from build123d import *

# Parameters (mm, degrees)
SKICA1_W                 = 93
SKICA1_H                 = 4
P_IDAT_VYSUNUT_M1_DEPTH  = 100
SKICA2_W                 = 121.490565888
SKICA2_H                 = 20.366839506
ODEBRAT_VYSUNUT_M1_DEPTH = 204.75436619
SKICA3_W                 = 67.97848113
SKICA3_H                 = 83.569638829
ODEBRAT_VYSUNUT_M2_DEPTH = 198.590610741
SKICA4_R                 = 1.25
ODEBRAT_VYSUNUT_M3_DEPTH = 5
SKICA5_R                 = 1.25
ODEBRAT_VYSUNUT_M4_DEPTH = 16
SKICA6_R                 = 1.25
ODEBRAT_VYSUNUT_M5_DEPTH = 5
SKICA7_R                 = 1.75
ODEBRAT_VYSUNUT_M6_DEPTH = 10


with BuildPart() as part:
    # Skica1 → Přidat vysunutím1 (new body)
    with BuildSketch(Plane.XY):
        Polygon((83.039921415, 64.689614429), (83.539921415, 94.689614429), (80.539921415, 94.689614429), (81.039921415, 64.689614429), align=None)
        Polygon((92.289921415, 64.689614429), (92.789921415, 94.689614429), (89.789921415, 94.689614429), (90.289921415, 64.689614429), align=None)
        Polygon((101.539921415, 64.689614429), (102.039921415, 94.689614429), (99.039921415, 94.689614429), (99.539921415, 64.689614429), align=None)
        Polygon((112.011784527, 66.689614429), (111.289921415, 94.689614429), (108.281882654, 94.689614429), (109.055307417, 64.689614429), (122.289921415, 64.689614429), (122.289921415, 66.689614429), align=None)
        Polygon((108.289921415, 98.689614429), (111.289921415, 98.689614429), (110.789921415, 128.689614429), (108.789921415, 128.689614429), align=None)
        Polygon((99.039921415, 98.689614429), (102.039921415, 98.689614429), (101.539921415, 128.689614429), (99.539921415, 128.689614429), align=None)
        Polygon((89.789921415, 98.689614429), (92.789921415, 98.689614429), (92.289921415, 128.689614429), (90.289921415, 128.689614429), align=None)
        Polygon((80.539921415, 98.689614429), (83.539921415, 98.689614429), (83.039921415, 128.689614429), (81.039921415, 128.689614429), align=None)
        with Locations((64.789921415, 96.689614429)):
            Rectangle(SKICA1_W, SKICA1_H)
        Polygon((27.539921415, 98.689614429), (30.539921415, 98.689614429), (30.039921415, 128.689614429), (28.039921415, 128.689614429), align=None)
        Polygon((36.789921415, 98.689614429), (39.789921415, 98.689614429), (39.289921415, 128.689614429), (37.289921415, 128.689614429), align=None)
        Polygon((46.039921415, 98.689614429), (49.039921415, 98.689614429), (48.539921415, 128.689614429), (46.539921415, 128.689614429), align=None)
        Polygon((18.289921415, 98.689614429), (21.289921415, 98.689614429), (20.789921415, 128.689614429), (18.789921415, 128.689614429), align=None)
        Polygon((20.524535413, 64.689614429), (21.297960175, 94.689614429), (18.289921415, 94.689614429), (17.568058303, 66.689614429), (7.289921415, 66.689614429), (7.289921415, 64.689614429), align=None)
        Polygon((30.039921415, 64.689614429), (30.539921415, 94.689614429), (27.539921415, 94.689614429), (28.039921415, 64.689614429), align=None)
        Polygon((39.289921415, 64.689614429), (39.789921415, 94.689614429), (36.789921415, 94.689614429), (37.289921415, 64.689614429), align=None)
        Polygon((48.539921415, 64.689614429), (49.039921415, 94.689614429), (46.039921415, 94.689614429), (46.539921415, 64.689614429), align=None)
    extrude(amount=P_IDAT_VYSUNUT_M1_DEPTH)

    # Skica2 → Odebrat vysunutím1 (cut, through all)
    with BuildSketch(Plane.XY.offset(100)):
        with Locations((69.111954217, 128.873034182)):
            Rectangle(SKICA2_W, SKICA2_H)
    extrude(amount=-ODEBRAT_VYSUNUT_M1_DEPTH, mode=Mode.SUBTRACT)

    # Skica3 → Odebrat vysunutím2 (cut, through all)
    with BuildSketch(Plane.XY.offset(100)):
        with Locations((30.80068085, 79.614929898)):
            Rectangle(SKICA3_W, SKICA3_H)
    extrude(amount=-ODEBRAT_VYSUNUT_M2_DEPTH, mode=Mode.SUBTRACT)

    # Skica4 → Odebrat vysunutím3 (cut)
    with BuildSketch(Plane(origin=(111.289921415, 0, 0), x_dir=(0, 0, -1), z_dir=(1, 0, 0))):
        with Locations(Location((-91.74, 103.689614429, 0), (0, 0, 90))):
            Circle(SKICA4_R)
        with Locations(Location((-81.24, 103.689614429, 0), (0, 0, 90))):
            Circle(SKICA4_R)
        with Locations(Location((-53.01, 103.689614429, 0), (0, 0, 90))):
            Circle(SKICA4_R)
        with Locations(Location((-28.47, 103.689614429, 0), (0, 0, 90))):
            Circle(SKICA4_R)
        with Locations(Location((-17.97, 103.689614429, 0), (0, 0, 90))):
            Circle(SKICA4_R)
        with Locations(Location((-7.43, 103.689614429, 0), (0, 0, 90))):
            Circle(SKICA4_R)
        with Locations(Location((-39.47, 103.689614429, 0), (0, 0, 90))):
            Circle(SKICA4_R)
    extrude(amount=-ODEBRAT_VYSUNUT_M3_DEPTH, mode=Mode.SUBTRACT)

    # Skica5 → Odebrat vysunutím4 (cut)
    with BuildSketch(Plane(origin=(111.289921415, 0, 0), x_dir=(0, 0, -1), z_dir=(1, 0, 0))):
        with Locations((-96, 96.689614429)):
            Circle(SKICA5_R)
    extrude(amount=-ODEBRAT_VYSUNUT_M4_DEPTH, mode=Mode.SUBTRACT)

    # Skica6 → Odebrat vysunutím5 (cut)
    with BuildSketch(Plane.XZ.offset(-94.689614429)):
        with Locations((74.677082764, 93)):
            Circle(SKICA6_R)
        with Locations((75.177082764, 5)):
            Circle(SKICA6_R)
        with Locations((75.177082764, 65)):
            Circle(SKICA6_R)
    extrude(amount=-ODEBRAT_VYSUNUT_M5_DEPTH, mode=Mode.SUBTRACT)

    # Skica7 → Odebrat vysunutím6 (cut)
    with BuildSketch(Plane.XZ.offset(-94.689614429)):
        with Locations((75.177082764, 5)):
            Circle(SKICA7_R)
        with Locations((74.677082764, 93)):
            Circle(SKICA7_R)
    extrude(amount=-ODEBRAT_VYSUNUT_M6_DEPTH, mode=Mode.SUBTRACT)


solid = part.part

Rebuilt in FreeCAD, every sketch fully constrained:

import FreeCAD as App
import Part
import Sketcher

V = App.Vector
Q = App.Units.Quantity

doc = App.newDocument("Part")
body = doc.addObject("PartDesign::Body", "Body")

# Sketch on XY plane
sketch1 = doc.addObject("Sketcher::SketchObject", "Sketch")
body.addObject(sketch1)
sketch1.AttachmentSupport = (doc.XY_Plane, [""])
sketch1.MapMode = "FlatFace"
sketch1.addGeometry(Part.LineSegment(V(83, 64.7, 0), V(83.5, 94.7, 0)), False)
sketch1.addGeometry(Part.LineSegment(V(83.5, 94.7, 0), V(89.8, 94.7, 0)), False)
sketch1.addGeometry(Part.LineSegment(V(89.8, 94.7, 0), V(90.3, 64.7, 0)), False)
sketch1.addGeometry(Part.LineSegment(V(90.3, 64.7, 0), V(92.3, 64.7, 0)), False)
sketch1.addGeometry(Part.LineSegment(V(92.3, 64.7, 0), V(92.8, 94.7, 0)), False)
sketch1.addGeometry(Part.LineSegment(V(92.8, 94.7, 0), V(99, 94.7, 0)), False)
sketch1.addGeometry(Part.LineSegment(V(99, 94.7, 0), V(99.5, 64.7, 0)), False)
sketch1.addGeometry(Part.LineSegment(V(99.5, 64.7, 0), V(101.5, 64.7, 0)), False)
sketch1.addGeometry(Part.LineSegment(V(101.5, 64.7, 0), V(102, 94.7, 0)), False)
sketch1.addGeometry(Part.LineSegment(V(102, 94.7, 0), V(108.3, 94.7, 0)), False)
sketch1.addGeometry(Part.LineSegment(V(108.3, 94.7, 0), V(109.1, 64.7, 0)), False)
sketch1.addGeometry(Part.LineSegment(V(109.1, 64.7, 0), V(122.3, 64.7, 0)), False)
sketch1.addGeometry(Part.LineSegment(V(122.3, 64.7, 0), V(122.3, 66.7, 0)), False)
sketch1.addGeometry(Part.LineSegment(V(122.3, 66.7, 0), V(112, 66.7, 0)), False)
sketch1.addGeometry(Part.LineSegment(V(112, 66.7, 0), V(111.3, 94.7, 0)), False)
sketch1.addGeometry(Part.LineSegment(V(111.3, 94.7, 0), V(111.3, 98.7, 0)), False)
sketch1.addGeometry(Part.LineSegment(V(111.3, 98.7, 0), V(110.8, 128.7, 0)), False)
sketch1.addGeometry(Part.LineSegment(V(110.8, 128.7, 0), V(108.8, 128.7, 0)), False)
sketch1.addGeometry(Part.LineSegment(V(108.8, 128.7, 0), V(108.3, 98.7, 0)), False)
sketch1.addGeometry(Part.LineSegment(V(108.3, 98.7, 0), V(102, 98.7, 0)), False)
sketch1.addGeometry(Part.LineSegment(V(102, 98.7, 0), V(101.5, 128.7, 0)), False)
sketch1.addGeometry(Part.LineSegment(V(101.5, 128.7, 0), V(99.5, 128.7, 0)), False)
sketch1.addGeometry(Part.LineSegment(V(99.5, 128.7, 0), V(99, 98.7, 0)), False)
sketch1.addGeometry(Part.LineSegment(V(99, 98.7, 0), V(92.8, 98.7, 0)), False)
sketch1.addGeometry(Part.LineSegment(V(92.8, 98.7, 0), V(92.3, 128.7, 0)), False)
sketch1.addGeometry(Part.LineSegment(V(92.3, 128.7, 0), V(90.3, 128.7, 0)), False)
sketch1.addGeometry(Part.LineSegment(V(90.3, 128.7, 0), V(89.8, 98.7, 0)), False)
sketch1.addGeometry(Part.LineSegment(V(89.8, 98.7, 0), V(83.5, 98.7, 0)), False)
sketch1.addGeometry(Part.LineSegment(V(83.5, 98.7, 0), V(83, 128.7, 0)), False)
sketch1.addGeometry(Part.LineSegment(V(83, 128.7, 0), V(81, 128.7, 0)), False)
sketch1.addGeometry(Part.LineSegment(V(81, 128.7, 0), V(80.5, 98.7, 0)), False)
sketch1.addGeometry(Part.LineSegment(V(80.5, 98.7, 0), V(49, 98.7, 0)), False)
sketch1.addGeometry(Part.LineSegment(V(49, 98.7, 0), V(48.5, 128.7, 0)), False)
sketch1.addGeometry(Part.LineSegment(V(48.5, 128.7, 0), V(46.5, 128.7, 0)), False)
sketch1.addGeometry(Part.LineSegment(V(46.5, 128.7, 0), V(46, 98.7, 0)), False)
sketch1.addGeometry(Part.LineSegment(V(46, 98.7, 0), V(39.8, 98.7, 0)), False)
sketch1.addGeometry(Part.LineSegment(V(39.8, 98.7, 0), V(39.3, 128.7, 0)), False)
sketch1.addGeometry(Part.LineSegment(V(39.3, 128.7, 0), V(37.3, 128.7, 0)), False)
sketch1.addGeometry(Part.LineSegment(V(37.3, 128.7, 0), V(36.8, 98.7, 0)), False)
sketch1.addGeometry(Part.LineSegment(V(36.8, 98.7, 0), V(30.5, 98.7, 0)), False)
sketch1.addGeometry(Part.LineSegment(V(30.5, 98.7, 0), V(30, 128.7, 0)), False)
sketch1.addGeometry(Part.LineSegment(V(30, 128.7, 0), V(28, 128.7, 0)), False)
sketch1.addGeometry(Part.LineSegment(V(28, 128.7, 0), V(27.5, 98.7, 0)), False)
sketch1.addGeometry(Part.LineSegment(V(27.5, 98.7, 0), V(21.3, 98.7, 0)), False)
sketch1.addGeometry(Part.LineSegment(V(21.3, 98.7, 0), V(20.8, 128.7, 0)), False)
sketch1.addGeometry(Part.LineSegment(V(20.8, 128.7, 0), V(18.8, 128.7, 0)), False)
sketch1.addGeometry(Part.LineSegment(V(18.8, 128.7, 0), V(18.3, 98.7, 0)), False)
sketch1.addGeometry(Part.LineSegment(V(18.3, 98.7, 0), V(18.3, 94.7, 0)), False)
sketch1.addGeometry(Part.LineSegment(V(18.3, 94.7, 0), V(17.6, 66.7, 0)), False)
sketch1.addGeometry(Part.LineSegment(V(17.6, 66.7, 0), V(7.3, 66.7, 0)), False)
sketch1.addGeometry(Part.LineSegment(V(7.3, 66.7, 0), V(7.3, 64.7, 0)), False)
sketch1.addGeometry(Part.LineSegment(V(7.3, 64.7, 0), V(20.5, 64.7, 0)), False)
sketch1.addGeometry(Part.LineSegment(V(20.5, 64.7, 0), V(21.3, 94.7, 0)), False)
sketch1.addGeometry(Part.LineSegment(V(21.3, 94.7, 0), V(27.5, 94.7, 0)), False)
sketch1.addGeometry(Part.LineSegment(V(27.5, 94.7, 0), V(28, 64.7, 0)), False)
sketch1.addGeometry(Part.LineSegment(V(28, 64.7, 0), V(30, 64.7, 0)), False)
sketch1.addGeometry(Part.LineSegment(V(30, 64.7, 0), V(30.5, 94.7, 0)), False)
sketch1.addGeometry(Part.LineSegment(V(30.5, 94.7, 0), V(36.8, 94.7, 0)), False)
sketch1.addGeometry(Part.LineSegment(V(36.8, 94.7, 0), V(37.3, 64.7, 0)), False)
sketch1.addGeometry(Part.LineSegment(V(37.3, 64.7, 0), V(39.3, 64.7, 0)), False)
sketch1.addGeometry(Part.LineSegment(V(39.3, 64.7, 0), V(39.8, 94.7, 0)), False)
sketch1.addGeometry(Part.LineSegment(V(39.8, 94.7, 0), V(46, 94.7, 0)), False)
sketch1.addGeometry(Part.LineSegment(V(46, 94.7, 0), V(46.5, 64.7, 0)), False)
sketch1.addGeometry(Part.LineSegment(V(46.5, 64.7, 0), V(48.5, 64.7, 0)), False)
sketch1.addGeometry(Part.LineSegment(V(48.5, 64.7, 0), V(49, 94.7, 0)), False)
sketch1.addGeometry(Part.LineSegment(V(49, 94.7, 0), V(80.5, 94.7, 0)), False)
sketch1.addGeometry(Part.LineSegment(V(80.5, 94.7, 0), V(81, 64.7, 0)), False)
sketch1.addGeometry(Part.LineSegment(V(81, 64.7, 0), V(83, 64.7, 0)), False)
sketch1.addConstraint(Sketcher.Constraint("Coincident", 0, 2, 1, 1))
sketch1.addConstraint(Sketcher.Constraint("Coincident", 1, 2, 2, 1))
sketch1.addConstraint(Sketcher.Constraint("Coincident", 2, 2, 3, 1))
sketch1.addConstraint(Sketcher.Constraint("Coincident", 3, 2, 4, 1))
sketch1.addConstraint(Sketcher.Constraint("Coincident", 4, 2, 5, 1))
sketch1.addConstraint(Sketcher.Constraint("Coincident", 5, 2, 6, 1))
sketch1.addConstraint(Sketcher.Constraint("Coincident", 6, 2, 7, 1))
sketch1.addConstraint(Sketcher.Constraint("Coincident", 7, 2, 8, 1))
sketch1.addConstraint(Sketcher.Constraint("Coincident", 8, 2, 9, 1))
sketch1.addConstraint(Sketcher.Constraint("Coincident", 9, 2, 10, 1))
sketch1.addConstraint(Sketcher.Constraint("Coincident", 10, 2, 11, 1))
sketch1.addConstraint(Sketcher.Constraint("Coincident", 11, 2, 12, 1))
sketch1.addConstraint(Sketcher.Constraint("Coincident", 12, 2, 13, 1))
sketch1.addConstraint(Sketcher.Constraint("Coincident", 13, 2, 14, 1))
sketch1.addConstraint(Sketcher.Constraint("Coincident", 14, 2, 15, 1))
sketch1.addConstraint(Sketcher.Constraint("Coincident", 15, 2, 16, 1))
sketch1.addConstraint(Sketcher.Constraint("Coincident", 16, 2, 17, 1))
sketch1.addConstraint(Sketcher.Constraint("Coincident", 17, 2, 18, 1))
sketch1.addConstraint(Sketcher.Constraint("Coincident", 18, 2, 19, 1))
sketch1.addConstraint(Sketcher.Constraint("Coincident", 19, 2, 20, 1))
sketch1.addConstraint(Sketcher.Constraint("Coincident", 20, 2, 21, 1))
sketch1.addConstraint(Sketcher.Constraint("Coincident", 21, 2, 22, 1))
sketch1.addConstraint(Sketcher.Constraint("Coincident", 22, 2, 23, 1))
sketch1.addConstraint(Sketcher.Constraint("Coincident", 23, 2, 24, 1))
sketch1.addConstraint(Sketcher.Constraint("Coincident", 24, 2, 25, 1))
sketch1.addConstraint(Sketcher.Constraint("Coincident", 25, 2, 26, 1))
sketch1.addConstraint(Sketcher.Constraint("Coincident", 26, 2, 27, 1))
sketch1.addConstraint(Sketcher.Constraint("Coincident", 27, 2, 28, 1))
sketch1.addConstraint(Sketcher.Constraint("Coincident", 28, 2, 29, 1))
sketch1.addConstraint(Sketcher.Constraint("Coincident", 29, 2, 30, 1))
sketch1.addConstraint(Sketcher.Constraint("Coincident", 30, 2, 31, 1))
sketch1.addConstraint(Sketcher.Constraint("Coincident", 31, 2, 32, 1))
sketch1.addConstraint(Sketcher.Constraint("Coincident", 32, 2, 33, 1))
sketch1.addConstraint(Sketcher.Constraint("Coincident", 33, 2, 34, 1))
sketch1.addConstraint(Sketcher.Constraint("Coincident", 34, 2, 35, 1))
sketch1.addConstraint(Sketcher.Constraint("Coincident", 35, 2, 36, 1))
sketch1.addConstraint(Sketcher.Constraint("Coincident", 36, 2, 37, 1))
sketch1.addConstraint(Sketcher.Constraint("Coincident", 37, 2, 38, 1))
sketch1.addConstraint(Sketcher.Constraint("Coincident", 38, 2, 39, 1))
sketch1.addConstraint(Sketcher.Constraint("Coincident", 39, 2, 40, 1))
sketch1.addConstraint(Sketcher.Constraint("Coincident", 40, 2, 41, 1))
sketch1.addConstraint(Sketcher.Constraint("Coincident", 41, 2, 42, 1))
sketch1.addConstraint(Sketcher.Constraint("Coincident", 42, 2, 43, 1))
sketch1.addConstraint(Sketcher.Constraint("Coincident", 43, 2, 44, 1))
sketch1.addConstraint(Sketcher.Constraint("Coincident", 44, 2, 45, 1))
sketch1.addConstraint(Sketcher.Constraint("Coincident", 45, 2, 46, 1))
sketch1.addConstraint(Sketcher.Constraint("Coincident", 46, 2, 47, 1))
sketch1.addConstraint(Sketcher.Constraint("Coincident", 47, 2, 48, 1))
sketch1.addConstraint(Sketcher.Constraint("Coincident", 48, 2, 49, 1))
sketch1.addConstraint(Sketcher.Constraint("Coincident", 49, 2, 50, 1))
sketch1.addConstraint(Sketcher.Constraint("Coincident", 50, 2, 51, 1))
sketch1.addConstraint(Sketcher.Constraint("Coincident", 51, 2, 52, 1))
sketch1.addConstraint(Sketcher.Constraint("Coincident", 52, 2, 53, 1))
sketch1.addConstraint(Sketcher.Constraint("Coincident", 53, 2, 54, 1))
sketch1.addConstraint(Sketcher.Constraint("Coincident", 54, 2, 55, 1))
sketch1.addConstraint(Sketcher.Constraint("Coincident", 55, 2, 56, 1))
sketch1.addConstraint(Sketcher.Constraint("Coincident", 56, 2, 57, 1))
sketch1.addConstraint(Sketcher.Constraint("Coincident", 57, 2, 58, 1))
sketch1.addConstraint(Sketcher.Constraint("Coincident", 58, 2, 59, 1))
sketch1.addConstraint(Sketcher.Constraint("Coincident", 59, 2, 60, 1))
sketch1.addConstraint(Sketcher.Constraint("Coincident", 60, 2, 61, 1))
sketch1.addConstraint(Sketcher.Constraint("Coincident", 61, 2, 62, 1))
sketch1.addConstraint(Sketcher.Constraint("Coincident", 62, 2, 63, 1))
sketch1.addConstraint(Sketcher.Constraint("Coincident", 63, 2, 64, 1))
sketch1.addConstraint(Sketcher.Constraint("Coincident", 64, 2, 65, 1))
sketch1.addConstraint(Sketcher.Constraint("Coincident", 65, 2, 66, 1))
sketch1.addConstraint(Sketcher.Constraint("Coincident", 66, 2, 67, 1))
sketch1.addConstraint(Sketcher.Constraint("Coincident", 67, 2, 0, 1))
sketch1.addConstraint(Sketcher.Constraint("Horizontal", 1))
sketch1.addConstraint(Sketcher.Constraint("Horizontal", 3))
sketch1.addConstraint(Sketcher.Constraint("Horizontal", 5))
sketch1.addConstraint(Sketcher.Constraint("Horizontal", 7))
sketch1.addConstraint(Sketcher.Constraint("Horizontal", 9))
sketch1.addConstraint(Sketcher.Constraint("Horizontal", 11))
sketch1.addConstraint(Sketcher.Constraint("Vertical", 12))
sketch1.addConstraint(Sketcher.Constraint("Horizontal", 13))
sketch1.addConstraint(Sketcher.Constraint("Vertical", 15))
sketch1.addConstraint(Sketcher.Constraint("Horizontal", 17))
sketch1.addConstraint(Sketcher.Constraint("Horizontal", 19))
sketch1.addConstraint(Sketcher.Constraint("Horizontal", 21))
sketch1.addConstraint(Sketcher.Constraint("Horizontal", 23))
sketch1.addConstraint(Sketcher.Constraint("Horizontal", 25))
sketch1.addConstraint(Sketcher.Constraint("Horizontal", 27))
sketch1.addConstraint(Sketcher.Constraint("Horizontal", 29))
sketch1.addConstraint(Sketcher.Constraint("Horizontal", 31))
sketch1.addConstraint(Sketcher.Constraint("Horizontal", 33))
sketch1.addConstraint(Sketcher.Constraint("Horizontal", 35))
sketch1.addConstraint(Sketcher.Constraint("Horizontal", 37))
sketch1.addConstraint(Sketcher.Constraint("Horizontal", 39))
sketch1.addConstraint(Sketcher.Constraint("Horizontal", 41))
sketch1.addConstraint(Sketcher.Constraint("Horizontal", 43))
sketch1.addConstraint(Sketcher.Constraint("Horizontal", 45))
sketch1.addConstraint(Sketcher.Constraint("Vertical", 47))
sketch1.addConstraint(Sketcher.Constraint("Horizontal", 49))
sketch1.addConstraint(Sketcher.Constraint("Vertical", 50))
sketch1.addConstraint(Sketcher.Constraint("Horizontal", 51))
sketch1.addConstraint(Sketcher.Constraint("Horizontal", 53))
sketch1.addConstraint(Sketcher.Constraint("Horizontal", 55))
sketch1.addConstraint(Sketcher.Constraint("Horizontal", 57))
sketch1.addConstraint(Sketcher.Constraint("Horizontal", 59))
sketch1.addConstraint(Sketcher.Constraint("Horizontal", 61))
sketch1.addConstraint(Sketcher.Constraint("Horizontal", 63))
sketch1.addConstraint(Sketcher.Constraint("Horizontal", 65))
sketch1.addConstraint(Sketcher.Constraint("Horizontal", 67))
sketch1.addConstraint(Sketcher.Constraint("Parallel", 0, 4))
sketch1.addConstraint(Sketcher.Constraint("Parallel", 2, 6))
sketch1.addConstraint(Sketcher.Constraint("Parallel", 4, 8))
sketch1.addConstraint(Sketcher.Constraint("Parallel", 10, 14))
sketch1.addConstraint(Sketcher.Constraint("Parallel", 6, 16))
sketch1.addConstraint(Sketcher.Constraint("Parallel", 8, 18))
sketch1.addConstraint(Sketcher.Constraint("Parallel", 16, 20))
sketch1.addConstraint(Sketcher.Constraint("Parallel", 18, 22))
sketch1.addConstraint(Sketcher.Constraint("Parallel", 20, 24))
sketch1.addConstraint(Sketcher.Constraint("Parallel", 22, 26))
sketch1.addConstraint(Sketcher.Constraint("Parallel", 24, 28))
sketch1.addConstraint(Sketcher.Constraint("Parallel", 26, 30))
sketch1.addConstraint(Sketcher.Constraint("Parallel", 28, 32))
sketch1.addConstraint(Sketcher.Constraint("Parallel", 30, 34))
sketch1.addConstraint(Sketcher.Constraint("Parallel", 32, 36))
sketch1.addConstraint(Sketcher.Constraint("Parallel", 34, 38))
sketch1.addConstraint(Sketcher.Constraint("Parallel", 36, 40))
sketch1.addConstraint(Sketcher.Constraint("Parallel", 38, 42))
sketch1.addConstraint(Sketcher.Constraint("Parallel", 40, 44))
sketch1.addConstraint(Sketcher.Constraint("Parallel", 42, 46))
sketch1.addConstraint(Sketcher.Constraint("Parallel", 48, 52))
sketch1.addConstraint(Sketcher.Constraint("Parallel", 44, 54))
sketch1.addConstraint(Sketcher.Constraint("Parallel", 46, 56))
sketch1.addConstraint(Sketcher.Constraint("Parallel", 54, 58))
sketch1.addConstraint(Sketcher.Constraint("Parallel", 56, 60))
sketch1.addConstraint(Sketcher.Constraint("Parallel", 58, 62))
sketch1.addConstraint(Sketcher.Constraint("Parallel", 60, 64))
sketch1.addConstraint(Sketcher.Constraint("Parallel", 62, 66))
sketch1.addConstraint(Sketcher.Constraint("Horizontal", 1, 2, 4, 2))
sketch1.addConstraint(Sketcher.Constraint("Horizontal", 3, 2, 6, 2))
sketch1.addConstraint(Sketcher.Constraint("Horizontal", 5, 2, 8, 2))
sketch1.addConstraint(Sketcher.Constraint("Horizontal", 7, 2, 10, 2))
sketch1.addConstraint(Sketcher.Constraint("Horizontal", 9, 2, 14, 2))
sketch1.addConstraint(Sketcher.Constraint("Horizontal", 15, 2, 18, 2))
sketch1.addConstraint(Sketcher.Constraint("Horizontal", 17, 2, 20, 2))
sketch1.addConstraint(Sketcher.Constraint("Horizontal", 19, 2, 22, 2))
sketch1.addConstraint(Sketcher.Constraint("Horizontal", 21, 2, 24, 2))
sketch1.addConstraint(Sketcher.Constraint("Horizontal", 23, 2, 26, 2))
sketch1.addConstraint(Sketcher.Constraint("Horizontal", 25, 2, 28, 2))
sketch1.addConstraint(Sketcher.Constraint("Horizontal", 27, 2, 30, 2))
sketch1.addConstraint(Sketcher.Constraint("Horizontal", 29, 2, 32, 2))
sketch1.addConstraint(Sketcher.Constraint("Horizontal", 31, 2, 34, 2))
sketch1.addConstraint(Sketcher.Constraint("Horizontal", 33, 2, 36, 2))
sketch1.addConstraint(Sketcher.Constraint("Horizontal", 35, 2, 38, 2))
sketch1.addConstraint(Sketcher.Constraint("Horizontal", 37, 2, 40, 2))
sketch1.addConstraint(Sketcher.Constraint("Horizontal", 39, 2, 42, 2))
sketch1.addConstraint(Sketcher.Constraint("Horizontal", 41, 2, 44, 2))
sketch1.addConstraint(Sketcher.Constraint("Horizontal", 43, 2, 46, 2))
sketch1.addConstraint(Sketcher.Constraint("Horizontal", 14, 2, 47, 2))
sketch1.addConstraint(Sketcher.Constraint("Horizontal", 13, 2, 48, 2))
sketch1.addConstraint(Sketcher.Constraint("Horizontal", 11, 2, 50, 2))
sketch1.addConstraint(Sketcher.Constraint("Horizontal", 47, 2, 52, 2))
sketch1.addConstraint(Sketcher.Constraint("Horizontal", 51, 2, 54, 2))
sketch1.addConstraint(Sketcher.Constraint("Horizontal", 53, 2, 56, 2))
sketch1.addConstraint(Sketcher.Constraint("Horizontal", 55, 2, 58, 2))
sketch1.addConstraint(Sketcher.Constraint("Horizontal", 57, 2, 60, 2))
sketch1.addConstraint(Sketcher.Constraint("Horizontal", 59, 2, 62, 2))
sketch1.addConstraint(Sketcher.Constraint("Horizontal", 61, 2, 64, 2))
sketch1.addConstraint(Sketcher.Constraint("Horizontal", 63, 2, 66, 2))
sketch1.addConstraint(Sketcher.Constraint("Vertical", 8, 2, 19, 2))
sketch1.addConstraint(Sketcher.Constraint("Vertical", 7, 2, 20, 2))
sketch1.addConstraint(Sketcher.Constraint("Vertical", 6, 2, 21, 2))
sketch1.addConstraint(Sketcher.Constraint("Vertical", 5, 2, 22, 2))
sketch1.addConstraint(Sketcher.Constraint("Vertical", 4, 2, 23, 2))
sketch1.addConstraint(Sketcher.Constraint("Vertical", 2, 2, 25, 2))
sketch1.addConstraint(Sketcher.Constraint("Vertical", 0, 2, 27, 2))
sketch1.addConstraint(Sketcher.Constraint("Vertical", 42, 2, 53, 2))
sketch1.addConstraint(Sketcher.Constraint("Vertical", 40, 2, 55, 2))
sketch1.addConstraint(Sketcher.Constraint("Vertical", 38, 2, 57, 2))
sketch1.addConstraint(Sketcher.Constraint("Vertical", 36, 2, 59, 2))
sketch1.addConstraint(Sketcher.Constraint("Vertical", 34, 2, 61, 2))
sketch1.addConstraint(Sketcher.Constraint("Vertical", 32, 2, 63, 2))
sketch1.addConstraint(Sketcher.Constraint("Vertical", 30, 2, 65, 2))
sketch1.addConstraint(Sketcher.Constraint("Equal", 1, 5))
sketch1.addConstraint(Sketcher.Constraint("Equal", 3, 7))
sketch1.addConstraint(Sketcher.Constraint("Equal", 7, 17))
sketch1.addConstraint(Sketcher.Constraint("Equal", 5, 19))
sketch1.addConstraint(Sketcher.Constraint("Equal", 25, 29))
sketch1.addConstraint(Sketcher.Constraint("Equal", 29, 33))
sketch1.addConstraint(Sketcher.Constraint("Equal", 27, 35))
sketch1.addConstraint(Sketcher.Constraint("Equal", 33, 37))
sketch1.addConstraint(Sketcher.Constraint("Equal", 35, 39))
sketch1.addConstraint(Sketcher.Constraint("Equal", 37, 41))
sketch1.addConstraint(Sketcher.Constraint("Equal", 39, 43))
sketch1.addConstraint(Sketcher.Constraint("Equal", 41, 45))
sketch1.addConstraint(Sketcher.Constraint("Equal", 13, 49))
sketch1.addConstraint(Sketcher.Constraint("Equal", 11, 51))
sketch1.addConstraint(Sketcher.Constraint("Equal", 9, 53))
sketch1.addConstraint(Sketcher.Constraint("Equal", 67, 12))
sketch1.addConstraint(Sketcher.Constraint("DistanceX", 3, 1, 3, 2, Q("2 mm")))
sketch1.addConstraint(Sketcher.Constraint("DistanceY", 15, 1, 15, 2, Q("4 mm")))
sketch1.addConstraint(Sketcher.Constraint("DistanceX", 31, 2, 31, 1, Q("31.5 mm")))
sketch1.addConstraint(Sketcher.Constraint("DistanceX", 1, 1, 1, 2, Q("6.25 mm")))
sketch1.addConstraint(Sketcher.Constraint("DistanceX", 9, 1, 9, 2, Q("6.241961 mm")))
sketch1.addConstraint(Sketcher.Constraint("Distance", 10, Q("30.009968 mm")))
sketch1.addConstraint(Sketcher.Constraint("DistanceX", 11, 1, 11, 2, Q("13.234614 mm")))
sketch1.addConstraint(Sketcher.Constraint("DistanceX", 13, 2, 13, 1, Q("10.278137 mm")))
sketch1.addConstraint(Sketcher.Constraint("DistanceX", -1, 1, 0, 2, Q("83.539921 mm")))
sketch1.addConstraint(Sketcher.Constraint("DistanceX", -1, 1, 2, 2, Q("90.289921 mm")))
sketch1.addConstraint(Sketcher.Constraint("DistanceY", -1, 1, 0, 2, Q("94.689614 mm")))
pad1 = doc.addObject("PartDesign::Pad", "Pad")
body.addObject(pad1)
pad1.Profile = sketch1
pad1.Length = 100

# Sketch on XY plane
sketch2 = doc.addObject("Sketcher::SketchObject", "Sketch001")
body.addObject(sketch2)
sketch2.AttachmentSupport = (doc.XY_Plane, [""])
sketch2.MapMode = "FlatFace"
sketch2.AttachmentOffset = App.Placement(V(0, 0, 100), App.Rotation())
sketch2.addGeometry(Part.LineSegment(V(8, 139, 0), V(8, 119, 0)), False)
sketch2.addGeometry(Part.LineSegment(V(8, 119, 0), V(130, 119, 0)), False)
sketch2.addGeometry(Part.LineSegment(V(130, 119, 0), V(130, 139, 0)), False)
sketch2.addGeometry(Part.LineSegment(V(130, 139, 0), V(8, 139, 0)), False)
sketch2.addConstraint(Sketcher.Constraint("Coincident", 0, 2, 1, 1))
sketch2.addConstraint(Sketcher.Constraint("Coincident", 1, 2, 2, 1))
sketch2.addConstraint(Sketcher.Constraint("Coincident", 2, 2, 3, 1))
sketch2.addConstraint(Sketcher.Constraint("Coincident", 3, 2, 0, 1))
sketch2.addConstraint(Sketcher.Constraint("Vertical", 0))
sketch2.addConstraint(Sketcher.Constraint("Horizontal", 1))
sketch2.addConstraint(Sketcher.Constraint("Vertical", 2))
sketch2.addConstraint(Sketcher.Constraint("Horizontal", 3))
sketch2.addConstraint(Sketcher.Constraint("DistanceY", 0, 2, 0, 1, Q("20.36684 mm")))
sketch2.addConstraint(Sketcher.Constraint("DistanceX", 1, 1, 1, 2, Q("121.490566 mm")))
sketch2.addConstraint(Sketcher.Constraint("DistanceX", -1, 1, 0, 2, Q("8.366671 mm")))
sketch2.addConstraint(Sketcher.Constraint("DistanceY", -1, 1, 0, 2, Q("118.689614 mm")))
pocket1 = doc.addObject("PartDesign::Pocket", "Pocket")
body.addObject(pocket1)
pocket1.Profile = sketch2
pocket1.Type = "ThroughAll"

# Sketch on XY plane
sketch3 = doc.addObject("Sketcher::SketchObject", "Sketch002")
body.addObject(sketch3)
sketch3.AttachmentSupport = (doc.XY_Plane, [""])
sketch3.MapMode = "FlatFace"
sketch3.AttachmentOffset = App.Placement(V(0, 0, 100), App.Rotation())
sketch3.addGeometry(Part.LineSegment(V(-3, 121, 0), V(-3, 38, 0)), False)
sketch3.addGeometry(Part.LineSegment(V(-3, 38, 0), V(65, 38, 0)), False)
sketch3.addGeometry(Part.LineSegment(V(65, 38, 0), V(65, 121, 0)), False)
sketch3.addGeometry(Part.LineSegment(V(65, 121, 0), V(-3, 121, 0)), False)
sketch3.addConstraint(Sketcher.Constraint("Coincident", 0, 2, 1, 1))
sketch3.addConstraint(Sketcher.Constraint("Coincident", 1, 2, 2, 1))
sketch3.addConstraint(Sketcher.Constraint("Coincident", 2, 2, 3, 1))
sketch3.addConstraint(Sketcher.Constraint("Coincident", 3, 2, 0, 1))
sketch3.addConstraint(Sketcher.Constraint("Vertical", 0))
sketch3.addConstraint(Sketcher.Constraint("Horizontal", 1))
sketch3.addConstraint(Sketcher.Constraint("Vertical", 2))
sketch3.addConstraint(Sketcher.Constraint("Horizontal", 3))
sketch3.addConstraint(Sketcher.Constraint("DistanceX", 1, 1, 1, 2, Q("67.978481 mm")))
sketch3.addConstraint(Sketcher.Constraint("DistanceY", 0, 2, 0, 1, Q("83.569639 mm")))
sketch3.addConstraint(Sketcher.Constraint("DistanceX", 0, 2, -1, 1, Q("3.18856 mm")))
sketch3.addConstraint(Sketcher.Constraint("DistanceY", -1, 1, 0, 2, Q("37.83011 mm")))
pocket2 = doc.addObject("PartDesign::Pocket", "Pocket001")
body.addObject(pocket2)
pocket2.Profile = sketch3
pocket2.Type = "ThroughAll"

# Sketch on YZ plane
sketch4 = doc.addObject("Sketcher::SketchObject", "Sketch003")
body.addObject(sketch4)
sketch4.AttachmentSupport = (doc.YZ_Plane, [""])
sketch4.MapMode = "FlatFace"
sketch4.AttachmentOffset = App.Placement(V(0, 0, 111.289921), App.Rotation())
sketch4.addGeometry(Part.Circle(V(103.7, 91.7, 0), V(0, 0, 1), 1.2), False)
sketch4.addGeometry(Part.Circle(V(103.7, 81.2, 0), V(0, 0, 1), 1.2), False)
sketch4.addGeometry(Part.Circle(V(103.7, 53, 0), V(0, 0, 1), 1.2), False)
sketch4.addGeometry(Part.Circle(V(103.7, 28.5, 0), V(0, 0, 1), 1.2), False)
sketch4.addGeometry(Part.Circle(V(103.7, 18, 0), V(0, 0, 1), 1.2), False)
sketch4.addGeometry(Part.Circle(V(103.7, 7.4, 0), V(0, 0, 1), 1.2), False)
sketch4.addGeometry(Part.Circle(V(103.7, 39.5, 0), V(0, 0, 1), 1.2), False)
sketch4.addConstraint(Sketcher.Constraint("Equal", 0, 1))
sketch4.addConstraint(Sketcher.Constraint("Equal", 1, 2))
sketch4.addConstraint(Sketcher.Constraint("Equal", 2, 3))
sketch4.addConstraint(Sketcher.Constraint("Equal", 3, 4))
sketch4.addConstraint(Sketcher.Constraint("Equal", 4, 5))
sketch4.addConstraint(Sketcher.Constraint("Equal", 5, 6))
sketch4.addConstraint(Sketcher.Constraint("Vertical", 0, 3, 1, 3))
sketch4.addConstraint(Sketcher.Constraint("Vertical", 1, 3, 2, 3))
sketch4.addConstraint(Sketcher.Constraint("Vertical", 2, 3, 3, 3))
sketch4.addConstraint(Sketcher.Constraint("Vertical", 3, 3, 4, 3))
sketch4.addConstraint(Sketcher.Constraint("Vertical", 4, 3, 5, 3))
sketch4.addConstraint(Sketcher.Constraint("Vertical", 5, 3, 6, 3))
sketch4.addConstraint(Sketcher.Constraint("Diameter", 0, Q("2.5 mm")))
sketch4.addConstraint(Sketcher.Constraint("DistanceY", 3, 3, 6, 3, Q("11 mm")))
sketch4.addConstraint(Sketcher.Constraint("DistanceY", 1, 3, 0, 3, Q("10.5 mm")))
sketch4.addConstraint(Sketcher.Constraint("DistanceY", 4, 3, 3, 3, Q("10.5 mm")))
sketch4.addConstraint(Sketcher.Constraint("DistanceY", -1, 1, 0, 3, Q("91.74 mm")))
sketch4.addConstraint(Sketcher.Constraint("DistanceY", -1, 1, 2, 3, Q("53.01 mm")))
sketch4.addConstraint(Sketcher.Constraint("DistanceY", -1, 1, 3, 3, Q("28.47 mm")))
sketch4.addConstraint(Sketcher.Constraint("DistanceY", -1, 1, 5, 3, Q("7.43 mm")))
sketch4.addConstraint(Sketcher.Constraint("DistanceX", -1, 1, 0, 3, Q("103.689614 mm")))
pocket3 = doc.addObject("PartDesign::Pocket", "Pocket002")
body.addObject(pocket3)
pocket3.Profile = sketch4
pocket3.Length = 5

# Sketch on YZ plane
sketch5 = doc.addObject("Sketcher::SketchObject", "Sketch004")
body.addObject(sketch5)
sketch5.AttachmentSupport = (doc.YZ_Plane, [""])
sketch5.MapMode = "FlatFace"
sketch5.AttachmentOffset = App.Placement(V(0, 0, 111.289921), App.Rotation())
sketch5.addGeometry(Part.Circle(V(96.7, 96, 0), V(0, 0, 1), 1.2), False)
sketch5.addConstraint(Sketcher.Constraint("Diameter", 0, Q("2.5 mm")))
sketch5.addConstraint(Sketcher.Constraint("DistanceY", -1, 1, 0, 3, Q("96 mm")))
sketch5.addConstraint(Sketcher.Constraint("DistanceX", -1, 1, 0, 3, Q("96.689614 mm")))
pocket4 = doc.addObject("PartDesign::Pocket", "Pocket003")
body.addObject(pocket4)
pocket4.Profile = sketch5
pocket4.Length = 16

# Sketch on XZ plane
sketch6 = doc.addObject("Sketcher::SketchObject", "Sketch005")
body.addObject(sketch6)
sketch6.AttachmentSupport = (doc.XZ_Plane, [""])
sketch6.MapMode = "FlatFace"
sketch6.AttachmentOffset = App.Placement(V(0, 0, -94.689614), App.Rotation())
sketch6.addGeometry(Part.Circle(V(74.7, 93, 0), V(0, 0, 1), 1.2), False)
sketch6.addGeometry(Part.Circle(V(75.2, 5, 0), V(0, 0, 1), 1.2), False)
sketch6.addGeometry(Part.Circle(V(75.2, 65, 0), V(0, 0, 1), 1.2), False)
sketch6.addConstraint(Sketcher.Constraint("Equal", 0, 1))
sketch6.addConstraint(Sketcher.Constraint("Equal", 1, 2))
sketch6.addConstraint(Sketcher.Constraint("Vertical", 1, 3, 2, 3))
sketch6.addConstraint(Sketcher.Constraint("Diameter", 0, Q("2.5 mm")))
sketch6.addConstraint(Sketcher.Constraint("DistanceY", -1, 1, 0, 3, Q("93 mm")))
sketch6.addConstraint(Sketcher.Constraint("DistanceY", -1, 1, 1, 3, Q("5 mm")))
sketch6.addConstraint(Sketcher.Constraint("DistanceY", -1, 1, 2, 3, Q("65 mm")))
sketch6.addConstraint(Sketcher.Constraint("DistanceX", 0, 3, 1, 3, Q("0.5 mm")))
sketch6.addConstraint(Sketcher.Constraint("DistanceX", -1, 1, 0, 3, Q("74.677083 mm")))
pocket5 = doc.addObject("PartDesign::Pocket", "Pocket004")
body.addObject(pocket5)
pocket5.Profile = sketch6
pocket5.Length = 5

# Sketch on XZ plane
sketch7 = doc.addObject("Sketcher::SketchObject", "Sketch006")
body.addObject(sketch7)
sketch7.AttachmentSupport = (doc.XZ_Plane, [""])
sketch7.MapMode = "FlatFace"
sketch7.AttachmentOffset = App.Placement(V(0, 0, -94.689614), App.Rotation())
sketch7.addGeometry(Part.Circle(V(75.2, 5, 0), V(0, 0, 1), 1.8), False)
sketch7.addGeometry(Part.Circle(V(74.7, 93, 0), V(0, 0, 1), 1.8), False)
sketch7.addConstraint(Sketcher.Constraint("Equal", 0, 1))
sketch7.addConstraint(Sketcher.Constraint("Diameter", 0, Q("3.5 mm")))
sketch7.addConstraint(Sketcher.Constraint("DistanceY", -1, 1, 0, 3, Q("5 mm")))
sketch7.addConstraint(Sketcher.Constraint("DistanceY", -1, 1, 1, 3, Q("93 mm")))
sketch7.addConstraint(Sketcher.Constraint("DistanceX", 1, 3, 0, 3, Q("0.5 mm")))
sketch7.addConstraint(Sketcher.Constraint("DistanceX", -1, 1, 0, 3, Q("75.177083 mm")))
pocket6 = doc.addObject("PartDesign::Pocket", "Pocket005")
body.addObject(pocket6)
pocket6.Profile = sketch7
pocket6.Length = 10

doc.recompute()
